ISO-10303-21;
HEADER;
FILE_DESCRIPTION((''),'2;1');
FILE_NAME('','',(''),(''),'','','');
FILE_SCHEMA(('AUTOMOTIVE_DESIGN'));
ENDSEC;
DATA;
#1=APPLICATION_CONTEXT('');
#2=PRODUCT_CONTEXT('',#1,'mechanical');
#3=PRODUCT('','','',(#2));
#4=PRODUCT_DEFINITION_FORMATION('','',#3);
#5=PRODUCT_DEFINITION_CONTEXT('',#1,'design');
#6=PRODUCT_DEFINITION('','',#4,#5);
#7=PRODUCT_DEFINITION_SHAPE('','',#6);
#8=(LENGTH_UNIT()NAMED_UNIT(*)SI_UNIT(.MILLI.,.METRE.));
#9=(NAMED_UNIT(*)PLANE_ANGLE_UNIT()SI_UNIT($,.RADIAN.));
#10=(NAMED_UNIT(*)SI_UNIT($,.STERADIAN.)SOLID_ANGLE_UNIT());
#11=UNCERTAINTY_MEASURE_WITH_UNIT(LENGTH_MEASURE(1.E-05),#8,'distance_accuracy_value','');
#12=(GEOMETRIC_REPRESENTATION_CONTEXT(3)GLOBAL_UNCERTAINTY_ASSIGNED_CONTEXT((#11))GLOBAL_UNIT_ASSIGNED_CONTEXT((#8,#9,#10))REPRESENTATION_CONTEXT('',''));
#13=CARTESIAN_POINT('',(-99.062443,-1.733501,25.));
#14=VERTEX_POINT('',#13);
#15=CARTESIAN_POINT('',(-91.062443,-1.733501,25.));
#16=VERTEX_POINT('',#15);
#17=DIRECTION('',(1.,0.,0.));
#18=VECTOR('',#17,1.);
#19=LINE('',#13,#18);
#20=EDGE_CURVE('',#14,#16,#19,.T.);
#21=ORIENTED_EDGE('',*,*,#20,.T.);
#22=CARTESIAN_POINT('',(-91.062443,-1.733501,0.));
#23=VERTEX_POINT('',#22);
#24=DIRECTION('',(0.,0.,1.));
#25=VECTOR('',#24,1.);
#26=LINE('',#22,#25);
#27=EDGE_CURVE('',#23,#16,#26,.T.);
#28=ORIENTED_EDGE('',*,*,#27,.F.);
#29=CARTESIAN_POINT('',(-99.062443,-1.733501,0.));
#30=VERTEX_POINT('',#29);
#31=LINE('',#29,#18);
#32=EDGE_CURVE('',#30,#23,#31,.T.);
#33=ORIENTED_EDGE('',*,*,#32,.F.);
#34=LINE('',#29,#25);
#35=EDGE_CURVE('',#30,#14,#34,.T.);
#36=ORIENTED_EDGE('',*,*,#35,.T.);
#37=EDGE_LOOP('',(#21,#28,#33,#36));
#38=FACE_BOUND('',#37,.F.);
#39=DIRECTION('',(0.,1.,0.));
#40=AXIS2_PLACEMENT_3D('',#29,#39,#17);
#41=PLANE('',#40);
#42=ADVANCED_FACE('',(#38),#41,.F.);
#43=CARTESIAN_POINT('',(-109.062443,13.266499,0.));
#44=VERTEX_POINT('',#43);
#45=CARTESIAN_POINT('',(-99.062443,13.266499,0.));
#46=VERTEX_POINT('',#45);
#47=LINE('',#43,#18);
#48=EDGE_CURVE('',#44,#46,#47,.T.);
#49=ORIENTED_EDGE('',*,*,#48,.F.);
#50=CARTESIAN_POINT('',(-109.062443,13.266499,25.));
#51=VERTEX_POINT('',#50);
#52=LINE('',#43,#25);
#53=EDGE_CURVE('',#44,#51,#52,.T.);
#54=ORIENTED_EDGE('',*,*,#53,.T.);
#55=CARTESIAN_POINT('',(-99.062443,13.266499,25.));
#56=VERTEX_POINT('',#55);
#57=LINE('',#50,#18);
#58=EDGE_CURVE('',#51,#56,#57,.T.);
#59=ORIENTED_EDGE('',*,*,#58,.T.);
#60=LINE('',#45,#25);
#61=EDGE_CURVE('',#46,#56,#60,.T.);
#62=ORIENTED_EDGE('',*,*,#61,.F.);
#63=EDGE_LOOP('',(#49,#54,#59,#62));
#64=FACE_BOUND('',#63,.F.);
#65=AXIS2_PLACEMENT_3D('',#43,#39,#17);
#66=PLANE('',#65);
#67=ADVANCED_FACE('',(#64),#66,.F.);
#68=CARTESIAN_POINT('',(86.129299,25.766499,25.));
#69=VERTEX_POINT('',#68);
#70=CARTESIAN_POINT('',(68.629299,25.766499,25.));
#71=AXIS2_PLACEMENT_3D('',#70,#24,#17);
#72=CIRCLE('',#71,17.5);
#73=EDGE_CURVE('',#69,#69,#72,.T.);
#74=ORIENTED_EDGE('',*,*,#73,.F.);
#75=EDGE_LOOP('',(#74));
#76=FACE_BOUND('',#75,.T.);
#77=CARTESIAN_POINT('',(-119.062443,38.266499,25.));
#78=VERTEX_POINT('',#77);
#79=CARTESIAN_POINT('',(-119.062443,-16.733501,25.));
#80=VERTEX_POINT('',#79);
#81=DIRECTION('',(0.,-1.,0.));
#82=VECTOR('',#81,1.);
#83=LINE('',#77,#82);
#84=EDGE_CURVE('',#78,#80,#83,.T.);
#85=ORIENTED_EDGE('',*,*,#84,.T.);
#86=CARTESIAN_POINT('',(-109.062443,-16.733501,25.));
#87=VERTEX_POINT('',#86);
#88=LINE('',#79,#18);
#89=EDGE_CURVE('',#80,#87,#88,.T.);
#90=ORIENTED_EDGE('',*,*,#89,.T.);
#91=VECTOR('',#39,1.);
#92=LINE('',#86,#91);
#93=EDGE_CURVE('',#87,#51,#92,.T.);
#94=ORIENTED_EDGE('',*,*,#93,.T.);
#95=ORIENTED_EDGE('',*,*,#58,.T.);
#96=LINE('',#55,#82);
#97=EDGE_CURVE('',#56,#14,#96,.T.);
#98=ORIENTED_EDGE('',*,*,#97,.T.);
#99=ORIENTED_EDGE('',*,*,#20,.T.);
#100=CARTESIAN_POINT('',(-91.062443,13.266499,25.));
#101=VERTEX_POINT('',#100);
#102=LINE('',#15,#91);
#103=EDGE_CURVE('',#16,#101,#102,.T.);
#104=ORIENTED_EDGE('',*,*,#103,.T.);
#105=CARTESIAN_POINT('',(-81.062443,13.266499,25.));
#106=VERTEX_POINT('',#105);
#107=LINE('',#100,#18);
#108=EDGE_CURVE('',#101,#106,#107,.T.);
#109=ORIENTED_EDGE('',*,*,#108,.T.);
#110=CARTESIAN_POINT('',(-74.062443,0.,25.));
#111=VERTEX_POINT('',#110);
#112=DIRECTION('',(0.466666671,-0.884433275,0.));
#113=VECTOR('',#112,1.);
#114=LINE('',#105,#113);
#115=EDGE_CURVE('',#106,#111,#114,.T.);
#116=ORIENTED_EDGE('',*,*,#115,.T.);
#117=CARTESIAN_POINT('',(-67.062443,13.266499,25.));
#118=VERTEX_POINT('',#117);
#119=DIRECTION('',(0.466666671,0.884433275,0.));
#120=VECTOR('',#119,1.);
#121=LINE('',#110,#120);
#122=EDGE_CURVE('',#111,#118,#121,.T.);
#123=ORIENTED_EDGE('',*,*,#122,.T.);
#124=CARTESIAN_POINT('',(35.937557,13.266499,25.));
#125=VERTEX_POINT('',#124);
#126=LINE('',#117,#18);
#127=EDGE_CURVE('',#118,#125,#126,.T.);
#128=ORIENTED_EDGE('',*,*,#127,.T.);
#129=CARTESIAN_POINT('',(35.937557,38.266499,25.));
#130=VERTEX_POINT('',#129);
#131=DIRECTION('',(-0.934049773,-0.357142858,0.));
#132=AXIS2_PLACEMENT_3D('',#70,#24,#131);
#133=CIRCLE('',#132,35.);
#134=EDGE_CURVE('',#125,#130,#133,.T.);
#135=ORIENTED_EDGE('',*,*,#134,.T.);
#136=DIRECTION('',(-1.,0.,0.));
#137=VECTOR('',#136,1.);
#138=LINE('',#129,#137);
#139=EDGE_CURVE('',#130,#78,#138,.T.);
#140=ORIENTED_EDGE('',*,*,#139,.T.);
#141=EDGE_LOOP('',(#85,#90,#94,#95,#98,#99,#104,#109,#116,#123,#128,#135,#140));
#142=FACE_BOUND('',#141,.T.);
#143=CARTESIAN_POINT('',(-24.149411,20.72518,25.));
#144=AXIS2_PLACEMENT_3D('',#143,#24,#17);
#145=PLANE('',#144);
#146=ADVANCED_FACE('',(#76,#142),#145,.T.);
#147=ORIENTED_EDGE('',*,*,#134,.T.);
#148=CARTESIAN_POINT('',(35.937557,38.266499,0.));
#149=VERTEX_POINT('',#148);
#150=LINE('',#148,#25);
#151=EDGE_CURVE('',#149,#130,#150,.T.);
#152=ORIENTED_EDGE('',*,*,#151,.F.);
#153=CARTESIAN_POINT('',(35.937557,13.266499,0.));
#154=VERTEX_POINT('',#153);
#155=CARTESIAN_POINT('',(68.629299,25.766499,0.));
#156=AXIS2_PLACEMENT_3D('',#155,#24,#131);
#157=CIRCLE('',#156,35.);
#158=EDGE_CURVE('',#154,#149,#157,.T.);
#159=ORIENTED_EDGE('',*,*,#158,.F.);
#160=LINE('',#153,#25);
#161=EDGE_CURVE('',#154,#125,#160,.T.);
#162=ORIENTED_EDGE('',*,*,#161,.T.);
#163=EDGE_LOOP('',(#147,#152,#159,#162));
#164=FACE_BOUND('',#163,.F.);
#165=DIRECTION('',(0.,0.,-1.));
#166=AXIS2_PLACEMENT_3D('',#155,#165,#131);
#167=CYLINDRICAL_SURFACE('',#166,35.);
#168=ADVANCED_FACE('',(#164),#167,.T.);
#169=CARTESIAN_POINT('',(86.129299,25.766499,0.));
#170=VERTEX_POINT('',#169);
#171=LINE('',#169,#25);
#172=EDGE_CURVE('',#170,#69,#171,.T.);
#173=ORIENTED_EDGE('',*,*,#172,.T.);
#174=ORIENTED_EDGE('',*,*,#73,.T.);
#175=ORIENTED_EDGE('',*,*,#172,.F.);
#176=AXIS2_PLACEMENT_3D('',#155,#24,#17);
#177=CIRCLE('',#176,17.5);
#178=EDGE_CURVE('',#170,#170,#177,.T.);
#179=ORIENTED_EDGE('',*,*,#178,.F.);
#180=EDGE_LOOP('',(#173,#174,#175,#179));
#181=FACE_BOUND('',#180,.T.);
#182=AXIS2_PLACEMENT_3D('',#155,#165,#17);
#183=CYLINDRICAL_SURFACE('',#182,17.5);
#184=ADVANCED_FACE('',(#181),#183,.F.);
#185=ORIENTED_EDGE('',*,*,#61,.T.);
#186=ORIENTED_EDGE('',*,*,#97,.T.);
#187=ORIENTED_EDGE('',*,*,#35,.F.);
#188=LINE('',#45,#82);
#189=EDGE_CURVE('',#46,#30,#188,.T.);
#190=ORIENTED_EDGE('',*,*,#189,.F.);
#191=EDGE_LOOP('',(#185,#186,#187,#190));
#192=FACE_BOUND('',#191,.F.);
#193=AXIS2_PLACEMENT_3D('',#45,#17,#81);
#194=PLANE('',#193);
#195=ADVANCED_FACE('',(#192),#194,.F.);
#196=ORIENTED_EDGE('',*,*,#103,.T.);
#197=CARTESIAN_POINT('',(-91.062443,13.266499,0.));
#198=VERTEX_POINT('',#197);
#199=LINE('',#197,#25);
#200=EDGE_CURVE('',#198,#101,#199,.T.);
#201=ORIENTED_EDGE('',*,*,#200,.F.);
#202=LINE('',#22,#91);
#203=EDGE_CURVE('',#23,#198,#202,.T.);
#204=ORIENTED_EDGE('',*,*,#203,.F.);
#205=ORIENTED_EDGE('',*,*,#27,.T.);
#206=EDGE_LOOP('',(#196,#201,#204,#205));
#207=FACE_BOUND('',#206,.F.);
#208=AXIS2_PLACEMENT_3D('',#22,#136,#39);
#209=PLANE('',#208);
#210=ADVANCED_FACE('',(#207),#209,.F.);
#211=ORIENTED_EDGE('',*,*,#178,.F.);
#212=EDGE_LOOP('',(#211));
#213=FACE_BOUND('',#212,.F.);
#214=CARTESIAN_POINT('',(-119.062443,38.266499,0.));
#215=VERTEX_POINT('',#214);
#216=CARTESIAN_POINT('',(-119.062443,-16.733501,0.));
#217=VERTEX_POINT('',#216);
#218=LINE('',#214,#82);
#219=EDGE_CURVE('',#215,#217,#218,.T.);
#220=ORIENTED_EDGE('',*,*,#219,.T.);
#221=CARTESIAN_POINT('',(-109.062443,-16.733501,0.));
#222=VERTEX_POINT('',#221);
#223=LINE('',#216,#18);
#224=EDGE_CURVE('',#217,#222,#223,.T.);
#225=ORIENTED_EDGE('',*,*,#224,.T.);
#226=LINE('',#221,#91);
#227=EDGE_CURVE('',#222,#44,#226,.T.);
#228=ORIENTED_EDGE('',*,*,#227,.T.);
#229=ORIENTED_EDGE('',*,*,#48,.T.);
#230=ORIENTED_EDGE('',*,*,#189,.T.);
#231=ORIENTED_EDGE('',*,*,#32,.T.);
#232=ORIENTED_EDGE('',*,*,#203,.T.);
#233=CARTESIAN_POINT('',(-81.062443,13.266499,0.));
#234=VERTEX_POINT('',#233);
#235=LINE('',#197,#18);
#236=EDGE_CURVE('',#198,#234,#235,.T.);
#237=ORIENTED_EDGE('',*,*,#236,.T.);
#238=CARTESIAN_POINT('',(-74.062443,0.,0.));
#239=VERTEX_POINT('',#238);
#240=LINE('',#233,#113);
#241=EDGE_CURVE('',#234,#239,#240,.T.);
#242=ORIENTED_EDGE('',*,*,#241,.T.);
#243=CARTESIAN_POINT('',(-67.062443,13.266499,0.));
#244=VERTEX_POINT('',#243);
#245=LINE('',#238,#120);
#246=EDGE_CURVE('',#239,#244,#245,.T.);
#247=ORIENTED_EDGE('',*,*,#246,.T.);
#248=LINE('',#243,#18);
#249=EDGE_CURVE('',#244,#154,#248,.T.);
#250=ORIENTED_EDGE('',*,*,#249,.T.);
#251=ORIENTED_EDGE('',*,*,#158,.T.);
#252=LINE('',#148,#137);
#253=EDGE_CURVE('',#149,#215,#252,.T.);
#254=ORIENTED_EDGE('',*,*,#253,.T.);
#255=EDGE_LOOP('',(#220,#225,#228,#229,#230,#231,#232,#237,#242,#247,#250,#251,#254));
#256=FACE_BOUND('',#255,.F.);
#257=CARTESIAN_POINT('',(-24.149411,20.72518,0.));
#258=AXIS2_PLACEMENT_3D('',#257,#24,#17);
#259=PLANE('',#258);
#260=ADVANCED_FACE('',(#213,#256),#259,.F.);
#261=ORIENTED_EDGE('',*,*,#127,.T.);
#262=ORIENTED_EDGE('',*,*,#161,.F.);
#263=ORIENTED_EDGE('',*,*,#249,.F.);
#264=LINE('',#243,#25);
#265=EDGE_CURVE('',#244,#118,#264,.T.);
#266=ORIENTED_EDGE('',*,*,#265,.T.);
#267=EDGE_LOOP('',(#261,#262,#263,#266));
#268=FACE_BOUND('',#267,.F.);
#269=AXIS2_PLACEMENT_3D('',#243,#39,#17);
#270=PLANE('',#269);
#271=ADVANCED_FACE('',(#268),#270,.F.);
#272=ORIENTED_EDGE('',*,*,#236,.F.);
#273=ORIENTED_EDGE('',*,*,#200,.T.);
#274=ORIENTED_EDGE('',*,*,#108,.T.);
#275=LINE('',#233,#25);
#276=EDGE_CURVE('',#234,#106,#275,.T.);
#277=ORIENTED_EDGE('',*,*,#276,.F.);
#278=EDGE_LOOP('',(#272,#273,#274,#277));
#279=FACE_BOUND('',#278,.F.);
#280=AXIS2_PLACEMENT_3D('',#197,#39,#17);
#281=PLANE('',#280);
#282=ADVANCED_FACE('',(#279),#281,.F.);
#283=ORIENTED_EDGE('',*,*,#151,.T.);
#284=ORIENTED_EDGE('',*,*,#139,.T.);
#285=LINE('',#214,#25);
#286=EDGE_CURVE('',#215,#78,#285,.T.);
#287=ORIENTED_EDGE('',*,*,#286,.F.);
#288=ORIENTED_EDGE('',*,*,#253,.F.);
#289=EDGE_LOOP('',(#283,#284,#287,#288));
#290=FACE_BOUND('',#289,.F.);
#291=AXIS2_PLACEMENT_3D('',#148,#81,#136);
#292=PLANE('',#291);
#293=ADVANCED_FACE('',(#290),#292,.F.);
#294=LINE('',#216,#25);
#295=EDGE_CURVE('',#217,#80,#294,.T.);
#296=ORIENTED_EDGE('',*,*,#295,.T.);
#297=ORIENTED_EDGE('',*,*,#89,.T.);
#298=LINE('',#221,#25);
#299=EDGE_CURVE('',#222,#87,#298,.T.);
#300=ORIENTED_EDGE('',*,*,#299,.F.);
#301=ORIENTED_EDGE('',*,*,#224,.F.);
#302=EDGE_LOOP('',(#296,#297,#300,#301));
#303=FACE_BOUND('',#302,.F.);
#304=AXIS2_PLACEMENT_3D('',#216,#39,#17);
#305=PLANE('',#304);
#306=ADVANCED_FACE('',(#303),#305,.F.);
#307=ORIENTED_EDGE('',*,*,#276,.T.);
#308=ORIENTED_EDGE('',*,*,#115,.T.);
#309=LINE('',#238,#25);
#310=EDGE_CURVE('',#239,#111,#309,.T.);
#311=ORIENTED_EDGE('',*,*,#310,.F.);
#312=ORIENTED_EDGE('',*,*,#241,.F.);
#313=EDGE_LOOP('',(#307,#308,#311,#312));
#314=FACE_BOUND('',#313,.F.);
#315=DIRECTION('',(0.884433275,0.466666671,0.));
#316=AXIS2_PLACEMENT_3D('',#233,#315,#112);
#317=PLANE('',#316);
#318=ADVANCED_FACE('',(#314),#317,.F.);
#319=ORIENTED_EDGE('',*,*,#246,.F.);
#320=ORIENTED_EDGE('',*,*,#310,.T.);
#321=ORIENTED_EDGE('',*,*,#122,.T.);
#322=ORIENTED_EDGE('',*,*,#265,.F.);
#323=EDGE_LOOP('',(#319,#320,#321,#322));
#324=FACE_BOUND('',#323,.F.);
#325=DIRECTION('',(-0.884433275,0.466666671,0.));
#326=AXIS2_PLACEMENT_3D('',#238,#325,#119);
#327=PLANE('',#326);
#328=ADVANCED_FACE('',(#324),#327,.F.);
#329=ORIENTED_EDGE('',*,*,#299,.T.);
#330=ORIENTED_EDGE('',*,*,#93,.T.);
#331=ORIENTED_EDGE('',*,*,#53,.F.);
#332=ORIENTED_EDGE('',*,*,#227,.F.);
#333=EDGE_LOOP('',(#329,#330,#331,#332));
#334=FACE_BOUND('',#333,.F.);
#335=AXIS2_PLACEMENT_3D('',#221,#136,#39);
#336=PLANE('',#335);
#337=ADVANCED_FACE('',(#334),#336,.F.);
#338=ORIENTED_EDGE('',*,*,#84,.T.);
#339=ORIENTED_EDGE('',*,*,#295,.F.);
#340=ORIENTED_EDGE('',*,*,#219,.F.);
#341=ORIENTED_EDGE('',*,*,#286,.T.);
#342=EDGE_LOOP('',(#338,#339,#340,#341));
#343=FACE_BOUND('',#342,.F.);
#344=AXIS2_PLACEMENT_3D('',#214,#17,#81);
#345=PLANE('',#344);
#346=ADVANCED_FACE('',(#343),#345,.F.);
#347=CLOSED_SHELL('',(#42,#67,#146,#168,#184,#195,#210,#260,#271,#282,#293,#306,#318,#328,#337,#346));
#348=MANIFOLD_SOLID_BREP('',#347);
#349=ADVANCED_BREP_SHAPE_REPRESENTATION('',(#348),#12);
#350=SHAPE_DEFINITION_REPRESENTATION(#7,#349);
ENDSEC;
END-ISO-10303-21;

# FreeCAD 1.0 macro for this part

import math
import FreeCAD as App
import Part
import Sketcher
from FreeCAD import Vector
Q = App.Units.Quantity

doc = App.newDocument("Part")
body = doc.addObject("PartDesign::Body", "Body")

# Sketch on XY plane
sketch1 = doc.addObject("Sketcher::SketchObject", "Sketch")
body.addObject(sketch1)
sketch1.AttachmentSupport = (doc.XY_Plane, [""])
sketch1.MapMode = "FlatFace"
sketch1.addGeometry([
    Part.LineSegment(Vector(35.937557, 38.266499, 0), Vector(-119.062443, 38.266499, 0)),  # 0
    Part.LineSegment(Vector(-119.062443, 38.266499, 0), Vector(-119.062443, -16.733501, 0)),  # 1
    Part.LineSegment(Vector(-119.062443, -16.733501, 0), Vector(-109.062443, -16.733501, 0)),  # 2
    Part.LineSegment(Vector(-109.062443, -16.733501, 0), Vector(-109.062443, 13.266499, 0)),  # 3
    Part.LineSegment(Vector(-109.062443, 13.266499, 0), Vector(-99.062443, 13.266499, 0)),  # 4
    Part.LineSegment(Vector(-99.062443, 13.266499, 0), Vector(-99.062443, -1.733501, 0)),  # 5
    Part.LineSegment(Vector(-99.062443, -1.733501, 0), Vector(-91.062443, -1.733501, 0)),  # 6
    Part.LineSegment(Vector(-91.062443, -1.733501, 0), Vector(-91.062443, 13.266499, 0)),  # 7
    Part.LineSegment(Vector(-91.062443, 13.266499, 0), Vector(-81.062443, 13.266499, 0)),  # 8
    Part.LineSegment(Vector(-81.062443, 13.266499, 0), Vector(-74.062443, 0, 0)),  # 9
    Part.LineSegment(Vector(-74.062443, 0, 0), Vector(-67.062443, 13.266499, 0)),  # 10
    Part.LineSegment(Vector(-67.062443, 13.266499, 0), Vector(35.937557, 13.266499, 0)),  # 11
    Part.ArcOfCircle(Part.Circle(Vector(68.629299, 25.766499, 0), Vector(0, 0, 1), 35), math.radians(-159.075168), math.radians(159.075168)),  # 12
    Part.Circle(Vector(68.629299, 25.766499, 0), Vector(0, 0, 1), 17.5),  # 13
], False)
sketch1.addConstraint([
    Sketcher.Constraint("Coincident", 0, 2, 1, 1),
    Sketcher.Constraint("Coincident", 1, 2, 2, 1),
    Sketcher.Constraint("Coincident", 2, 2, 3, 1),
    Sketcher.Constraint("Coincident", 3, 2, 4, 1),
    Sketcher.Constraint("Coincident", 4, 2, 5, 1),
    Sketcher.Constraint("Coincident", 5, 2, 6, 1),
    Sketcher.Constraint("Coincident", 6, 2, 7, 1),
    Sketcher.Constraint("Coincident", 7, 2, 8, 1),
    Sketcher.Constraint("Coincident", 8, 2, 9, 1),
    Sketcher.Constraint("Coincident", 9, 2, 10, 1),
    Sketcher.Constraint("Coincident", 10, 2, 11, 1),
    Sketcher.Constraint("Coincident", 11, 2, 12, 1),
    Sketcher.Constraint("Coincident", 12, 2, 0, 1),
    Sketcher.Constraint("Horizontal", 0),
    Sketcher.Constraint("Vertical", 1),
    Sketcher.Constraint("Horizontal", 2),
    Sketcher.Constraint("Vertical", 3),
    Sketcher.Constraint("Horizontal", 4),
    Sketcher.Constraint("Vertical", 5),
    Sketcher.Constraint("Horizontal", 6),
    Sketcher.Constraint("Vertical", 7),
    Sketcher.Constraint("Horizontal", 8),
    Sketcher.Constraint("Horizontal", 11),
    Sketcher.Constraint("Coincident", 13, 3, 12, 3),
    Sketcher.Constraint("PointOnObject", 9, 2, -1),
    Sketcher.Constraint("Horizontal", 4, 2, 7, 2),
    Sketcher.Constraint("Horizontal", 8, 2, 10, 2),
    Sketcher.Constraint("Vertical", 11, 2, 12, 2),
    Sketcher.Constraint("Equal", 2, 4),
    Sketcher.Constraint("Equal", 4, 8),
    Sketcher.Constraint("Equal", 9, 10),
    Sketcher.Constraint("Diameter", 13, Q("35 mm")),
    Sketcher.Constraint("Radius", 12, Q("35 mm")),
    Sketcher.Constraint("DistanceX", 0, 2, 0, 1, Q("155 mm")),
    Sketcher.Constraint("DistanceX", 2, 1, 2, 2, Q("10 mm")),
    Sketcher.Constraint("DistanceX", 6, 1, 6, 2, Q("8 mm")),
    Sketcher.Constraint("DistanceX", 11, 1, 11, 2, Q("103 mm")),
    Sketcher.Constraint("DistanceY", 1, 2, 1, 1, Q("55 mm")),
    Sketcher.Constraint("DistanceY", 3, 1, 3, 2, Q("30 mm")),
    Sketcher.Constraint("DistanceY", 5, 2, 5, 1, Q("15 mm")),
    Sketcher.Constraint("Distance", 9, Q("15 mm")),
    Sketcher.Constraint("DistanceX", -1, 1, 12, 3, Q("68.629299 mm")),
])
pad1 = doc.addObject("PartDesign::Pad", "Pad")
body.addObject(pad1)
pad1.Profile = sketch1
pad1.Length = 25

doc.recompute()
